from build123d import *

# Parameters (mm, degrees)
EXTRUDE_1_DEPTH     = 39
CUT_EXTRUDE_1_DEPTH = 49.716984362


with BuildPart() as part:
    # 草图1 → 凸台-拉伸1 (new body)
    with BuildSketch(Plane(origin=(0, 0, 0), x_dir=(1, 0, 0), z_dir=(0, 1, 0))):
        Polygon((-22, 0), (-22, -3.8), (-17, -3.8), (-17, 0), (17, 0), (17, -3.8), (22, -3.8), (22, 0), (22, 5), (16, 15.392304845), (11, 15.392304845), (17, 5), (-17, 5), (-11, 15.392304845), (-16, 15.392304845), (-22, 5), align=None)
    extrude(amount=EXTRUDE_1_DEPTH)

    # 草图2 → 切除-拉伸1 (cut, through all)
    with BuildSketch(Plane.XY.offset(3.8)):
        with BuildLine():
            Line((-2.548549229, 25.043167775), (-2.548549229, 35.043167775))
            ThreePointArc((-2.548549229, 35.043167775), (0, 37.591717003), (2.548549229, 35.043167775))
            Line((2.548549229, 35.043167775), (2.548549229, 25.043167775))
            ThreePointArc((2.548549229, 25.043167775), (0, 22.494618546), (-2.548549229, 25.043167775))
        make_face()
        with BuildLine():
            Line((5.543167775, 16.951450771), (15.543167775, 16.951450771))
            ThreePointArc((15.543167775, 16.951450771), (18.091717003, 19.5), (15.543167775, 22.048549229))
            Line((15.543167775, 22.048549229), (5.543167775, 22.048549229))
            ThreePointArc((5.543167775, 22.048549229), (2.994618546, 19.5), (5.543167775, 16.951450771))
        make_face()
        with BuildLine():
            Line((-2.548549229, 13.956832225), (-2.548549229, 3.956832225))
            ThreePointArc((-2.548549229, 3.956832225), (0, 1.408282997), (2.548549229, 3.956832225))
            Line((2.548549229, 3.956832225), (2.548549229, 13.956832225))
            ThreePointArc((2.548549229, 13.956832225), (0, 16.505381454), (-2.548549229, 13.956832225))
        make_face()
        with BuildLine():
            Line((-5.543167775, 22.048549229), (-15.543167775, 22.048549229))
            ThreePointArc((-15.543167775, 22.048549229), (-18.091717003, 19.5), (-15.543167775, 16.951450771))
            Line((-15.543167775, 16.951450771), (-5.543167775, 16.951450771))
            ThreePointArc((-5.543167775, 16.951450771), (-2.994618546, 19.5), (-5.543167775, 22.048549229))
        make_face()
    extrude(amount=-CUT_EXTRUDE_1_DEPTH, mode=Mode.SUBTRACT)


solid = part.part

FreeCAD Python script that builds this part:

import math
import FreeCAD as App
import Part
import Sketcher

V = App.Vector
Q = App.Units.Quantity

doc = App.newDocument("Part")
body = doc.addObject("PartDesign::Body", "Body")

# Sketch on XZ plane
sketch1 = body.newObject("Sketcher::SketchObject", "Sketch")
sketch1.AttachmentSupport = (doc.getObject("XZ_Plane"), [""])
sketch1.MapMode = "FlatFace"
sketch1.addGeometry([
    Part.LineSegment(V(-22, 3.8, 0), V(-17, 3.8, 0)),  # 0
    Part.LineSegment(V(-17, 3.8, 0), V(-17, 0, 0)),  # 1
    Part.LineSegment(V(-17, 0, 0), V(17, 0, 0)),  # 2
    Part.LineSegment(V(17, 0, 0), V(17, 3.8, 0)),  # 3
    Part.LineSegment(V(17, 3.8, 0), V(22, 3.8, 0)),  # 4
    Part.LineSegment(V(22, 3.8, 0), V(22, -5, 0)),  # 5
    Part.LineSegment(V(22, -5, 0), V(16, -15.392305, 0)),  # 6
    Part.LineSegment(V(16, -15.392305, 0), V(11, -15.392305, 0)),  # 7
    Part.LineSegment(V(11, -15.392305, 0), V(17, -5, 0)),  # 8
    Part.LineSegment(V(17, -5, 0), V(-17, -5, 0)),  # 9
    Part.LineSegment(V(-17, -5, 0), V(-11, -15.392305, 0)),  # 10
    Part.LineSegment(V(-11, -15.392305, 0), V(-16, -15.392305, 0)),  # 11
    Part.LineSegment(V(-16, -15.392305, 0), V(-22, -5, 0)),  # 12
    Part.LineSegment(V(-22, -5, 0), V(-22, 3.8, 0)),  # 13
], False)
sketch1.addConstraint([
    Sketcher.Constraint("Coincident", 0, 2, 1, 1),
    Sketcher.Constraint("Coincident", 1, 2, 2, 1),
    Sketcher.Constraint("Coincident", 2, 2, 3, 1),
    Sketcher.Constraint("Coincident", 3, 2, 4, 1),
    Sketcher.Constraint("Coincident", 4, 2, 5, 1),
    Sketcher.Constraint("Coincident", 5, 2, 6, 1),
    Sketcher.Constraint("Coincident", 6, 2, 7, 1),
    Sketcher.Constraint("Coincident", 7, 2, 8, 1),
    Sketcher.Constraint("Coincident", 8, 2, 9, 1),
    Sketcher.Constraint("Coincident", 9, 2, 10, 1),
    Sketcher.Constraint("Coincident", 10, 2, 11, 1),
    Sketcher.Constraint("Coincident", 11, 2, 12, 1),
    Sketcher.Constraint("Coincident", 12, 2, 13, 1),
    Sketcher.Constraint("Coincident", 13, 2, 0, 1),
    Sketcher.Constraint("Horizontal", 0),
    Sketcher.Constraint("Vertical", 1),
    Sketcher.Constraint("Horizontal", 2),
    Sketcher.Constraint("Vertical", 3),
    Sketcher.Constraint("Horizontal", 4),
    Sketcher.Constraint("Vertical", 5),
    Sketcher.Constraint("Horizontal", 7),
    Sketcher.Constraint("Horizontal", 9),
    Sketcher.Constraint("Horizontal", 11),
    Sketcher.Constraint("Vertical", 13),
    Sketcher.Constraint("Symmetric", 1, 2, 2, 2, -1, 1),
    Sketcher.Constraint("Symmetric", 7, 2, 10, 2, -2),
    Sketcher.Constraint("Symmetric", 5, 2, 12, 2, -2),
    Sketcher.Constraint("Parallel", 6, 8),
    Sketcher.Constraint("Parallel", 10, 12),
    Sketcher.Constraint("Horizontal", 0, 2, 3, 2),
    Sketcher.Constraint("Horizontal", 5, 2, 8, 2),
    Sketcher.Constraint("Vertical", 3, 2, 8, 2),
    Sketcher.Constraint("Vertical", 1, 2, 9, 2),
    Sketcher.Constraint("DistanceX", 0, 1, 0, 2, 5.0),
    Sketcher.Constraint("DistanceX", 2, 1, 2, 2, 34.0),
    Sketcher.Constraint("Angle", 6, Q("-120 deg")),
    Sketcher.Constraint("Distance", 6, 12.0),
    Sketcher.Constraint("DistanceY", 1, 2, 1, 1, 3.8),
    Sketcher.Constraint("DistanceY", 5, 2, 5, 1, 8.8),
])
pad1 = body.newObject("PartDesign::Pad", "Pad")
pad1.Profile = sketch1
pad1.Length = 39
pad1.Reversed = True

# Sketch on XY plane
sketch2 = body.newObject("Sketcher::SketchObject", "Sketch001")
sketch2.AttachmentSupport = (doc.getObject("XY_Plane"), [""])
sketch2.MapMode = "FlatFace"
sketch2.AttachmentOffset = App.Placement(V(0, 0, 3.8), App.Rotation())
sketch2.addGeometry([
    Part.LineSegment(V(-2.548549, 35.043168, 0), V(-2.548549, 25.043168, 0)),  # 0
    Part.ArcOfCircle(Part.Circle(V(0, 25.043168, 0), V(0, 0, 1), 2.548549), math.radians(180), math.radians(360)),  # 1
    Part.LineSegment(V(2.548549, 25.043168, 0), V(2.548549, 35.043168, 0)),  # 2
    Part.ArcOfCircle(Part.Circle(V(0, 35.043168, 0), V(0, 0, 1), 2.548549), math.radians(0), math.radians(180)),  # 3
    Part.LineSegment(V(5.543168, 16.951451, 0), V(15.543168, 16.951451, 0)),  # 4
    Part.ArcOfCircle(Part.Circle(V(15.543168, 19.5, 0), V(0, 0, 1), 2.548549), math.radians(-90), math.radians(90)),  # 5
    Part.LineSegment(V(15.543168, 22.048549, 0), V(5.543168, 22.048549, 0)),  # 6
    Part.ArcOfCircle(Part.Circle(V(5.543168, 19.5, 0), V(0, 0, 1), 2.548549), math.radians(90), math.radians(270)),  # 7
    Part.LineSegment(V(-2.548549, 13.956832, 0), V(-2.548549, 3.956832, 0)),  # 8
    Part.ArcOfCircle(Part.Circle(V(0, 3.956832, 0), V(0, 0, 1), 2.548549), math.radians(-180), math.radians(0)),  # 9
    Part.LineSegment(V(2.548549, 3.956832, 0), V(2.548549, 13.956832, 0)),  # 10
    Part.ArcOfCircle(Part.Circle(V(0, 13.956832, 0), V(0, 0, 1), 2.548549), math.radians(0), math.radians(180)),  # 11
    Part.LineSegment(V(-5.543168, 22.048549, 0), V(-15.543168, 22.048549, 0)),  # 12
    Part.ArcOfCircle(Part.Circle(V(-15.543168, 19.5, 0), V(0, 0, 1), 2.548549), math.radians(90), math.radians(270)),  # 13
    Part.LineSegment(V(-15.543168, 16.951451, 0), V(-5.543168, 16.951451, 0)),  # 14
    Part.ArcOfCircle(Part.Circle(V(-5.543168, 19.5, 0), V(0, 0, 1), 2.548549), math.radians(-90), math.radians(90)),  # 15
], False)
sketch2.addConstraint([
    Sketcher.Constraint("Tangent", 0, 2, 1, 1),
    Sketcher.Constraint("Tangent", 1, 2, 2, 1),
    Sketcher.Constraint("Tangent", 2, 2, 3, 1),
    Sketcher.Constraint("Tangent", 3, 2, 0, 1),
    Sketcher.Constraint("Tangent", 4, 2, 5, 1),
    Sketcher.Constraint("Tangent", 5, 2, 6, 1),
    Sketcher.Constraint("Tangent", 6, 2, 7, 1),
    Sketcher.Constraint("Tangent", 7, 2, 4, 1),
    Sketcher.Constraint("Tangent", 8, 2, 9, 1),
    Sketcher.Constraint("Tangent", 9, 2, 10, 1),
    Sketcher.Constraint("Tangent", 10, 2, 11, 1),
    Sketcher.Constraint("Tangent", 11, 2, 8, 1),
    Sketcher.Constraint("Tangent", 12, 2, 13, 1),
    Sketcher.Constraint("Tangent", 13, 2, 14, 1),
    Sketcher.Constraint("Tangent", 14, 2, 15, 1),
    Sketcher.Constraint("Tangent", 15, 2, 12, 1),
    Sketcher.Constraint("Vertical", 0),
    Sketcher.Constraint("Vertical", 2),
    Sketcher.Constraint("Horizontal", 4),
    Sketcher.Constraint("Horizontal", 6),
    Sketcher.Constraint("Vertical", 8),
    Sketcher.Constraint("Vertical", 10),
    Sketcher.Constraint("Horizontal", 12),
    Sketcher.Constraint("Horizontal", 14),
    Sketcher.Constraint("Equal", 3, 5),
    Sketcher.Constraint("Equal", 7, 9),
    Sketcher.Constraint("Equal", 11, 13),
    Sketcher.Constraint("Symmetric", 5, 3, 13, 3, -2),
    Sketcher.Constraint("PointOnObject", 1, 3, -2),
    Sketcher.Constraint("PointOnObject", 9, 3, -2),
    Sketcher.Constraint("Equal", 6, 12),
    Sketcher.Constraint("Equal", 14, 0),
    Sketcher.Constraint("Equal", 2, 8),
    Sketcher.Constraint("DistanceX", 4, 1, 4, 2, 10.0),
    Sketcher.Constraint("DistanceY", -1, 1, 5, 3, 19.5),
    Sketcher.Constraint("Radius", 1, 2.548549),
    Sketcher.Constraint("DistanceX", 15, 3, 0, 2, 2.994619),
    Sketcher.Constraint("DistanceY", 11, 3, 4, 2, 2.994619),
    Sketcher.Constraint("DistanceY", 5, 2, 1, 2, 2.994619),
])
pocket1 = body.newObject("PartDesign::Pocket", "Pocket")
pocket1.Profile = sketch2
pocket1.Type = "ThroughAll"

doc.recompute()
